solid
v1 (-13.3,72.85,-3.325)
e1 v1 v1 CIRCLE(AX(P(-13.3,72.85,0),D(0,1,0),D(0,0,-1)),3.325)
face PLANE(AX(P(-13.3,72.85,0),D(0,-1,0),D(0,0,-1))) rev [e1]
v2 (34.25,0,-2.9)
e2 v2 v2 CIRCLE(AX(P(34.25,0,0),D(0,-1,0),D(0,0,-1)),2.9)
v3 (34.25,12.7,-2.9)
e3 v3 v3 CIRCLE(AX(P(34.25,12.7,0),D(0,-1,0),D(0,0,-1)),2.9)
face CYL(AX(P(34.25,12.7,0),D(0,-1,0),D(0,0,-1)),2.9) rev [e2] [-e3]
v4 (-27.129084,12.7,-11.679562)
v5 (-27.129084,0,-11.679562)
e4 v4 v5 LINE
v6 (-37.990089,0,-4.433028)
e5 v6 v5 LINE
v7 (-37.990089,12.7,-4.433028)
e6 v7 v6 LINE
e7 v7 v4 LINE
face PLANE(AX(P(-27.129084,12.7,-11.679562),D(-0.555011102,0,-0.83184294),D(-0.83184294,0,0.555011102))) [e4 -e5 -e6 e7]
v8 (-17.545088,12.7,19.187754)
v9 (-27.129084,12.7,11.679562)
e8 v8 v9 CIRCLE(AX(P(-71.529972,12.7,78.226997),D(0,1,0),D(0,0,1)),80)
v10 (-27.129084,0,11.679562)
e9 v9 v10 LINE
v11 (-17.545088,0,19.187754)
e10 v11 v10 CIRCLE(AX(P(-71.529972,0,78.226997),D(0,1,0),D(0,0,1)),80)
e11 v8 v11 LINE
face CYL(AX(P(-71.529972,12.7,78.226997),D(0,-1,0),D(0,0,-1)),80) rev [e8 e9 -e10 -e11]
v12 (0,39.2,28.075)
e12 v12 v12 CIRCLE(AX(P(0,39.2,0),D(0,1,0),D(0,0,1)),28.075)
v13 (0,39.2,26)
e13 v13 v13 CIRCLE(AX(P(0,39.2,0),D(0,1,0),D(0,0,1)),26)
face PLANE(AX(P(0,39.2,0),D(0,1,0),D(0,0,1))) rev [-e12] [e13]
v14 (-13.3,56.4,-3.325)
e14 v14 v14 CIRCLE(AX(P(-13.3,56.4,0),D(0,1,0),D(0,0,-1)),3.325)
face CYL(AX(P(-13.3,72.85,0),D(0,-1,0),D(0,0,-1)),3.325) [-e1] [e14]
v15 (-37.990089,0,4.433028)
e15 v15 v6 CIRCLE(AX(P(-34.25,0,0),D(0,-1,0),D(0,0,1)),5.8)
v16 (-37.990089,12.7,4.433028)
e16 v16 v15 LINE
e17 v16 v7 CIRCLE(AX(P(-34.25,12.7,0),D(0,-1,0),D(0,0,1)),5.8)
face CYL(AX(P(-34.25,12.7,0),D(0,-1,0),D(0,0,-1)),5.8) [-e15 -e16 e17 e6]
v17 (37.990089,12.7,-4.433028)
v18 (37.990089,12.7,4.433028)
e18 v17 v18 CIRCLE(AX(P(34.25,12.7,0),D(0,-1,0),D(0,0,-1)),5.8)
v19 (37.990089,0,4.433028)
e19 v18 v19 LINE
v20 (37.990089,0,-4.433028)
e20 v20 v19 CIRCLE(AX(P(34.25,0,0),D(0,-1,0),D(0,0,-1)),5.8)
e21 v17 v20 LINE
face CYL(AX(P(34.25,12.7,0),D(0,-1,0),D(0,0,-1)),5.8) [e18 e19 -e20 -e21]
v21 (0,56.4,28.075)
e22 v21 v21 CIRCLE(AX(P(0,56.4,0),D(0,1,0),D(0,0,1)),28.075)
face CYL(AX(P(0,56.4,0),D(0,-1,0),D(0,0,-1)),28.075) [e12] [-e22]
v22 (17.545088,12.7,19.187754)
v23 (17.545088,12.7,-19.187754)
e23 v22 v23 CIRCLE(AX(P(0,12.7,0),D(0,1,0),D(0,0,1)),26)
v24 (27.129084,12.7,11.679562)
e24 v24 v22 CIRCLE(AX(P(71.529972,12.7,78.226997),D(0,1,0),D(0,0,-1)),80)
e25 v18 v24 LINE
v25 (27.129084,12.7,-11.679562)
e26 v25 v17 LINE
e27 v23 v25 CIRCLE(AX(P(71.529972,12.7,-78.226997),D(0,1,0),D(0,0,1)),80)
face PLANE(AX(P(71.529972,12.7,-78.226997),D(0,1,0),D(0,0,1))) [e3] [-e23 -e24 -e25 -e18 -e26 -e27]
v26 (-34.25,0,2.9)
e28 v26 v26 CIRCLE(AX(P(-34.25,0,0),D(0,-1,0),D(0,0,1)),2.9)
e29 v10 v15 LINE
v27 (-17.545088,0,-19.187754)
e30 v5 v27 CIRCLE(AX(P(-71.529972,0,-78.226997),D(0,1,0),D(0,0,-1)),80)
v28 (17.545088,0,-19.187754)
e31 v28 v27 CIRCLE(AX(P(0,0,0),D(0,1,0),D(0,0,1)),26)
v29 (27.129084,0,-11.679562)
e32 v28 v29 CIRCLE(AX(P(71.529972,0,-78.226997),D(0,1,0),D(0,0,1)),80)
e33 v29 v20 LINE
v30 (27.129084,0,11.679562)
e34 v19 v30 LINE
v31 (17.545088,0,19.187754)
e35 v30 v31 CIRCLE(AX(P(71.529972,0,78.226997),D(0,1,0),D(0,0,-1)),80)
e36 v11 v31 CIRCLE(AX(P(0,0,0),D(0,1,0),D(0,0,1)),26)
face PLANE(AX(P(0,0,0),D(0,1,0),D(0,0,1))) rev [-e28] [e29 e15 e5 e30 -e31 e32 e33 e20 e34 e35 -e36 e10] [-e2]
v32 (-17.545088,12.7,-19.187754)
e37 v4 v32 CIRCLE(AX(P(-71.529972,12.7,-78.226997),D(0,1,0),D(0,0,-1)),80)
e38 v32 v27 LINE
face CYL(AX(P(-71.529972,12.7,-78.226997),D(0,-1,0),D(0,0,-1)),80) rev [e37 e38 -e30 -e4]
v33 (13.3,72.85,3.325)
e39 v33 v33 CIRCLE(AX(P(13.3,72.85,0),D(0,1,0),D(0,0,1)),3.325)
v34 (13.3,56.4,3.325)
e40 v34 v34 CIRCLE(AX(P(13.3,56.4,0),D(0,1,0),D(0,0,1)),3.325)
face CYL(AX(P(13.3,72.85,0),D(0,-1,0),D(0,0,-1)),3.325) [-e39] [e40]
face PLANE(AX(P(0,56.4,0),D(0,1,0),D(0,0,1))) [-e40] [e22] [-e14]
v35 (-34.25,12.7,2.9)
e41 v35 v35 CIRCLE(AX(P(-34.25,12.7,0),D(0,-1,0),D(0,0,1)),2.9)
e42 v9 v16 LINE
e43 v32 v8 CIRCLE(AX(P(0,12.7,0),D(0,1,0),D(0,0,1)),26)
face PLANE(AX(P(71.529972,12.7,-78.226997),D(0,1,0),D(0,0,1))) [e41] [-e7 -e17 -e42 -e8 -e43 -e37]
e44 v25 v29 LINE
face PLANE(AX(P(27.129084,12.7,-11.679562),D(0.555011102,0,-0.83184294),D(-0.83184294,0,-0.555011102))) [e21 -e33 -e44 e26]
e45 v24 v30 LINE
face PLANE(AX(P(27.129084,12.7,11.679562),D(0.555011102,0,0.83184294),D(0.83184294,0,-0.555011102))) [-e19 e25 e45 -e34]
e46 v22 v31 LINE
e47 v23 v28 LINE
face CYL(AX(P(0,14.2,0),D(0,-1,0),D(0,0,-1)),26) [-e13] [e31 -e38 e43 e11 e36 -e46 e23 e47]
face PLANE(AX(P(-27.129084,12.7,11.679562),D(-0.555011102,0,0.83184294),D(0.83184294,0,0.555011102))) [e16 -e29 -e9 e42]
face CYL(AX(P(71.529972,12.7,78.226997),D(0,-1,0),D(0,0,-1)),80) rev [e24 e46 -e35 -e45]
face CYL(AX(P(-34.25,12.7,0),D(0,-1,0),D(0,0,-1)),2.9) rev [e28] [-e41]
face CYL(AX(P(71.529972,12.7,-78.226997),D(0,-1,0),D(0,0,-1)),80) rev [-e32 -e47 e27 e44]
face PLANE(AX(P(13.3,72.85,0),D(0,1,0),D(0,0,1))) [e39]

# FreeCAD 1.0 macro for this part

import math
import FreeCAD as App
import Part
import Sketcher

V = App.Vector
Q = App.Units.Quantity

doc = App.newDocument("Part")
params = doc.addObject("Spreadsheet::Sheet", "Params")
for row, (alias, value) in enumerate([
    ("sketch1_diameter", "52 mm"),
    ("pad1_length", "14.2 mm"),
    ("sketch2_radius", "80 mm"),
    ("sketch2_radius2", "26 mm"),
    ("sketch2_diameter", "5.8 mm"),
    ("sketch2_radius3", "5.8 mm"),
    ("pad2_length", "12.7 mm"),
    ("sketch3_diameter", "52 mm"),
    ("pad3_length", "25 mm"),
    ("sketch4_diameter", "56.15 mm"),
    ("pad4_length", "17.2 mm"),
    ("sketch5_diameter", "6.65 mm"),
    ("pad5_length", "16.45 mm"),
], start=1):
    params.set(f"A{row}", alias)
    params.set(f"B{row}", "=" + value)
    params.setAlias(f"B{row}", alias)

body = doc.addObject("PartDesign::Body", "Body")

# Sketch on XZ plane
sketch1 = body.newObject("Sketcher::SketchObject", "Sketch")
sketch1.AttachmentSupport = (doc.getObject("XZ_Plane"), [""])
sketch1.MapMode = "FlatFace"
sketch1.addGeometry(Part.Circle(V(0, 0, 0), V(0, 0, 1), 26), False)
sketch1.addConstraint([
    Sketcher.Constraint("Coincident", 0, 3, -1, 1),
    Sketcher.Constraint("Diameter", 0, Q("52 mm")),
])
sketch1.setExpression("Constraints[1]", "Params.sketch1_diameter")
pad1 = body.newObject("PartDesign::Pad", "Pad")
pad1.Profile = sketch1
pad1.setExpression("Length", "Params.pad1_length")
pad1.Reversed = True

# Sketch on XZ plane
sketch2 = body.newObject("Sketcher::SketchObject", "Sketch001")
sketch2.AttachmentSupport = (doc.getObject("XZ_Plane"), [""])
sketch2.MapMode = "FlatFace"
sketch2.addGeometry([
    Part.LineSegment(V(27.1, -11.7, 0), V(38, -4.4, 0)),  # 0
    Part.ArcOfCircle(Part.Circle(V(34.2, 0, 0), V(0, 0, 1), 5.8), math.radians(-50), math.radians(50)),  # 1
    Part.LineSegment(V(38, 4.4, 0), V(27.1, 11.7, 0)),  # 2
    Part.ArcOfCircle(Part.Circle(V(71.5, 78.2, 0), V(0, 0, 1), 80), math.radians(-132.44), math.radians(-123.71)),  # 3
    Part.ArcOfCircle(Part.Circle(V(0, 0, 0), V(0, 0, 1), 26), math.radians(48), math.radians(132)),  # 4
    Part.ArcOfCircle(Part.Circle(V(-71.5, 78.2, 0), V(0, 0, 1), 80), math.radians(-56.29), math.radians(-47.56)),  # 5
    Part.LineSegment(V(-27.1, 11.7, 0), V(-38, 4.4, 0)),  # 6
    Part.ArcOfCircle(Part.Circle(V(-34.2, 0, 0), V(0, 0, 1), 5.8), math.radians(130), math.radians(230)),  # 7
    Part.LineSegment(V(-38, -4.4, 0), V(-27.1, -11.7, 0)),  # 8
    Part.ArcOfCircle(Part.Circle(V(-71.5, -78.2, 0), V(0, 0, 1), 80), math.radians(47.56), math.radians(56.29)),  # 9
    Part.ArcOfCircle(Part.Circle(V(0, 0, 0), V(0, 0, 1), 26), math.radians(-132), math.radians(-48)),  # 10
    Part.ArcOfCircle(Part.Circle(V(71.5, -78.2, 0), V(0, 0, 1), 80), math.radians(123.71), math.radians(132.44)),  # 11
    Part.Circle(V(-34.2, 0, 0), V(0, 0, 1), 2.9),  # 12
    Part.Circle(V(34.2, 0, 0), V(0, 0, 1), 2.9),  # 13
], False)
sketch2.addConstraint([
    Sketcher.Constraint("Coincident", 0, 2, 1, 1),
    Sketcher.Constraint("Coincident", 1, 2, 2, 1),
    Sketcher.Constraint("Tangent", 2, 2, 3, 2),
    Sketcher.Constraint("Tangent", 3, 1, 4, 1),
    Sketcher.Constraint("Tangent", 4, 2, 5, 2),
    Sketcher.Constraint("Tangent", 5, 1, 6, 1),
    Sketcher.Constraint("Coincident", 6, 2, 7, 1),
    Sketcher.Constraint("Coincident", 7, 2, 8, 1),
    Sketcher.Constraint("Tangent", 8, 2, 9, 2),
    Sketcher.Constraint("Tangent", 9, 1, 10, 1),
    Sketcher.Constraint("Tangent", 10, 2, 11, 2),
    Sketcher.Constraint("Tangent", 11, 1, 0, 1),
    Sketcher.Constraint("Coincident", 4, 3, -1, 1),
    Sketcher.Constraint("Coincident", 10, 3, -1, 1),
    Sketcher.Constraint("Coincident", 12, 3, 7, 3),
    Sketcher.Constraint("Coincident", 13, 3, 1, 3),
    Sketcher.Constraint("Equal", 3, 5),
    Sketcher.Constraint("Equal", 1, 7),
    Sketcher.Constraint("Equal", 5, 9),
    Sketcher.Constraint("Equal", 4, 10),
    Sketcher.Constraint("Equal", 9, 11),
    Sketcher.Constraint("Equal", 12, 13),
    Sketcher.Constraint("Symmetric", 1, 3, 7, 3, -1, 1),
    Sketcher.Constraint("Symmetric", 2, 2, 8, 2, -1, 1),
    Sketcher.Constraint("Symmetric", 2, 2, 5, 1, -2),
    Sketcher.Constraint("Symmetric", 0, 2, 7, 2, -2),
    Sketcher.Constraint("Parallel", 0, 6),
    Sketcher.Constraint("Radius", 3, Q("80 mm")),
    Sketcher.Constraint("Radius", 4, Q("26 mm")),
    Sketcher.Constraint("Diameter", 12, Q("5.8 mm")),
    Sketcher.Constraint("Radius", 1, Q("5.8 mm")),
    Sketcher.Constraint("DistanceX", 7, 3, 1, 3, Q("68.5 mm")),
    Sketcher.Constraint("DistanceX", 3, 1, 1, 2, Q("20.445001 mm")),
    Sketcher.Constraint("DistanceX", -1, 1, 0, 2, Q("37.990089 mm")),
])
sketch2.setExpression("Constraints[27]", "Params.sketch2_radius")
sketch2.setExpression("Constraints[28]", "Params.sketch2_radius2")
sketch2.setExpression("Constraints[29]", "Params.sketch2_diameter")
sketch2.setExpression("Constraints[30]", "Params.sketch2_radius3")
pad2 = body.newObject("PartDesign::Pad", "Pad001")
pad2.Profile = sketch2
pad2.setExpression("Length", "Params.pad2_length")
pad2.Reversed = True

# Sketch on XZ plane
sketch3 = body.newObject("Sketcher::SketchObject", "Sketch002")
sketch3.AttachmentSupport = (doc.getObject("XZ_Plane"), [""])
sketch3.MapMode = "FlatFace"
sketch3.AttachmentOffset = App.Placement(V(0, 0, -14.2), App.Rotation())
sketch3.addGeometry(Part.Circle(V(0, 0, 0), V(0, 0, 1), 26), False)
sketch3.addConstraint([
    Sketcher.Constraint("Coincident", 0, 3, -1, 1),
    Sketcher.Constraint("Diameter", 0, Q("52 mm")),
])
sketch3.setExpression("Constraints[1]", "Params.sketch3_diameter")
pad3 = body.newObject("PartDesign::Pad", "Pad002")
pad3.Profile = sketch3
pad3.setExpression("Length", "Params.pad3_length")
pad3.Reversed = True

# Sketch on XZ plane
sketch4 = body.newObject("Sketcher::SketchObject", "Sketch003")
sketch4.AttachmentSupport = (doc.getObject("XZ_Plane"), [""])
sketch4.MapMode = "FlatFace"
sketch4.AttachmentOffset = App.Placement(V(0, 0, -39.2), App.Rotation())
sketch4.addGeometry(Part.Circle(V(0, 0, 0), V(0, 0, 1), 28), False)
sketch4.addConstraint([
    Sketcher.Constraint("Coincident", 0, 3, -1, 1),
    Sketcher.Constraint("Diameter", 0, Q("56.15 mm")),
])
sketch4.setExpression("Constraints[1]", "Params.sketch4_diameter")
pad4 = body.newObject("PartDesign::Pad", "Pad003")
pad4.Profile = sketch4
pad4.setExpression("Length", "Params.pad4_length")
pad4.Reversed = True

# Sketch on XZ plane
sketch5 = body.newObject("Sketcher::SketchObject", "Sketch004")
sketch5.AttachmentSupport = (doc.getObject("XZ_Plane"), [""])
sketch5.MapMode = "FlatFace"
sketch5.AttachmentOffset = App.Placement(V(0, 0, -56.4), App.Rotation())
sketch5.addGeometry([
    Part.Circle(V(13.3, 0, 0), V(0, 0, 1), 3.3),
    Part.Circle(V(-13.3, 0, 0), V(0, 0, 1), 3.3),
], False)
sketch5.addConstraint([
    Sketcher.Constraint("Equal", 0, 1),
    Sketcher.Constraint("Symmetric", 0, 3, 1, 3, -1, 1),
    Sketcher.Constraint("PointOnObject", 0, 3, -1),
    Sketcher.Constraint("Diameter", 0, Q("6.65 mm")),
    Sketcher.Constraint("DistanceX", -1, 1, 0, 3, Q("13.3 mm")),
])
sketch5.setExpression("Constraints[3]", "Params.sketch5_diameter")
pad5 = body.newObject("PartDesign::Pad", "Pad004")
pad5.Profile = sketch5
pad5.setExpression("Length", "Params.pad5_length")
pad5.Reversed = True

doc.recompute()
